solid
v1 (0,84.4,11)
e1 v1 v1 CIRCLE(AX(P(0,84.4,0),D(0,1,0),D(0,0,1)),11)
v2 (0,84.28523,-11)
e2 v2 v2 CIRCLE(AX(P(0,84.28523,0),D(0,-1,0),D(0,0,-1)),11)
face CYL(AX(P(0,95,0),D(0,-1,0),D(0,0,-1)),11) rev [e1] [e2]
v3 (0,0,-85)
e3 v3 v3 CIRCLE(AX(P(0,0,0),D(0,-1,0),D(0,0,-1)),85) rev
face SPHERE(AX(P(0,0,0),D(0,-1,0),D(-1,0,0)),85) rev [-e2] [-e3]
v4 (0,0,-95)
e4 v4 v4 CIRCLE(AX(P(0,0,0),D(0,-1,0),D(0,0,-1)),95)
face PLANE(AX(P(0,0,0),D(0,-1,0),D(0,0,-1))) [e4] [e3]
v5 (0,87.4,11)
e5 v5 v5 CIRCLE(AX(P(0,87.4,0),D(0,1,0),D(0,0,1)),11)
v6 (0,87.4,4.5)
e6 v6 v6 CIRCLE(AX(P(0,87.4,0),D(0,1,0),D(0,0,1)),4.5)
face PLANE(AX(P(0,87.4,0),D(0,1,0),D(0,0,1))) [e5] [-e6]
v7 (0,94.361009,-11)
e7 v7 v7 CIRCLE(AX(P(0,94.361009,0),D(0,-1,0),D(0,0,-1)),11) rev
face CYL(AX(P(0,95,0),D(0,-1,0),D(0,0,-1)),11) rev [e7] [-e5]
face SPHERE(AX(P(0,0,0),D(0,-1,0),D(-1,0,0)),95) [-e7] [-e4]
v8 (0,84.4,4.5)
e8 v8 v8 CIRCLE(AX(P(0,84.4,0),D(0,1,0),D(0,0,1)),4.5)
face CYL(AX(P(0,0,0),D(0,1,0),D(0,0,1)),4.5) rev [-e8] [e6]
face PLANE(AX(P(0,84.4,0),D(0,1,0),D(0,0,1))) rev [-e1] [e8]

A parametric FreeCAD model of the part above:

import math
import FreeCAD as App
import Part
import Sketcher

V = App.Vector

doc = App.newDocument("Part")
body = doc.addObject("PartDesign::Body", "Body")

# Sketch on XY plane
sketch1 = doc.addObject("Sketcher::SketchObject", "Sketch")
body.addObject(sketch1)
sketch1.AttachmentSupport = (doc.XY_Plane, [""])
sketch1.MapMode = "FlatFace"
sketch1.addGeometry([
    Part.LineSegment(V(0, 85, 0), V(0, 95, 0)),
    Part.ArcOfCircle(Part.Circle(V(0, 0, 0), V(0, 0, 1), 95), math.radians(90), math.radians(270)),
    Part.LineSegment(V(0, -95, 0), V(0, -85, 0)),
    Part.ArcOfCircle(Part.Circle(V(0, 0, 0), V(0, 0, 1), 85), math.radians(90), math.radians(270)),
], False)
sketch1.addConstraint([
    Sketcher.Constraint("Coincident", 0, 2, 1, 1),
    Sketcher.Constraint("Coincident", 1, 2, 2, 1),
    Sketcher.Constraint("Coincident", 2, 2, 3, 2),
    Sketcher.Constraint("Coincident", 3, 1, 0, 1),
    Sketcher.Constraint("Vertical", 0),
    Sketcher.Constraint("Vertical", 2),
    Sketcher.Constraint("Coincident", 1, 3, -1, 1),
    Sketcher.Constraint("Coincident", 3, 3, -1, 1),
    Sketcher.Constraint("PointOnObject", 0, 2, -2),
    Sketcher.Constraint("PointOnObject", 1, 2, -2),
    Sketcher.Constraint("Radius", 1, 95.0),
    Sketcher.Constraint("Radius", 3, 85.0),
])
revolution = doc.addObject("PartDesign::Revolution", "Revolution")
body.addObject(revolution)
revolution.Profile = sketch1
revolution.ReferenceAxis = (sketch1, ["V_Axis"])
revolution.Angle = 360

# Sketch on XZ plane
sketch2 = doc.addObject("Sketcher::SketchObject", "Sketch001")
body.addObject(sketch2)
sketch2.AttachmentSupport = (doc.XZ_Plane, [""])
sketch2.MapMode = "FlatFace"
sketch2.addGeometry([
    Part.LineSegment(V(-121, -116, 0), V(-121, 116, 0)),
    Part.LineSegment(V(-121, 116, 0), V(121, 116, 0)),
    Part.LineSegment(V(121, 116, 0), V(121, -116, 0)),
    Part.LineSegment(V(121, -116, 0), V(-121, -116, 0)),
], False)
sketch2.addConstraint([
    Sketcher.Constraint("Coincident", 0, 2, 1, 1),
    Sketcher.Constraint("Coincident", 1, 2, 2, 1),
    Sketcher.Constraint("Coincident", 2, 2, 3, 1),
    Sketcher.Constraint("Coincident", 3, 2, 0, 1),
    Sketcher.Constraint("Vertical", 0),
    Sketcher.Constraint("Horizontal", 1),
    Sketcher.Constraint("Vertical", 2),
    Sketcher.Constraint("Horizontal", 3),
    Sketcher.Constraint("Symmetric", 0, 2, 2, 2, -1, 1),
    Sketcher.Constraint("DistanceY", 0, 1, 0, 2, 231.138031),
    Sketcher.Constraint("DistanceX", 1, 1, 1, 2, 242.645614),
])
pocket1 = doc.addObject("PartDesign::Pocket", "Pocket")
body.addObject(pocket1)
pocket1.Profile = sketch2
pocket1.Type = "ThroughAll"
pocket1.Reversed = True

# Sketch on XZ plane
sketch3 = doc.addObject("Sketcher::SketchObject", "Sketch002")
body.addObject(sketch3)
sketch3.AttachmentSupport = (doc.XZ_Plane, [""])
sketch3.MapMode = "FlatFace"
sketch3.addGeometry(Part.Circle(V(0, 0, 0), V(0, 0, 1), 11), False)
sketch3.addConstraint([
    Sketcher.Constraint("Coincident", 0, 3, -1, 1),
    Sketcher.Constraint("Diameter", 0, 22.0),
])
pocket2 = doc.addObject("PartDesign::Pocket", "Pocket001")
body.addObject(pocket2)
pocket2.Profile = sketch3
pocket2.Type = "ThroughAll"

# Sketch on XZ plane
sketch4 = doc.addObject("Sketcher::SketchObject", "Sketch003")
body.addObject(sketch4)
sketch4.AttachmentSupport = (doc.XZ_Plane, [""])
sketch4.MapMode = "FlatFace"
sketch4.AttachmentOffset = App.Placement(V(0, 0, -84.4), App.Rotation())
sketch4.addGeometry(Part.Circle(V(0, 0, 0), V(0, 0, 1), 31), False)
sketch4.addConstraint([
    Sketcher.Constraint("Coincident", 0, 3, -1, 1),
    Sketcher.Constraint("Diameter", 0, 62.405758),
])
pad1 = doc.addObject("PartDesign::Pad", "Pad")
body.addObject(pad1)
pad1.Profile = sketch4
pad1.Length = 4
pad1.Reversed = True

# Sketch on XZ plane
sketch5 = doc.addObject("Sketcher::SketchObject", "Sketch004")
body.addObject(sketch5)
sketch5.AttachmentSupport = (doc.XZ_Plane, [""])
sketch5.MapMode = "FlatFace"
sketch5.AttachmentOffset = App.Placement(V(0, 0, -87.4), App.Rotation())
sketch5.addGeometry(Part.Circle(V(0, 0, 0), V(0, 0, 1), 11), False)
sketch5.addConstraint([
    Sketcher.Constraint("Coincident", 0, 3, -1, 1),
    Sketcher.Constraint("Diameter", 0, 22.0),
])
pocket3 = doc.addObject("PartDesign::Pocket", "Pocket002")
body.addObject(pocket3)
pocket3.Profile = sketch5
pocket3.Length = 7

# Sketch on XZ plane
sketch6 = doc.addObject("Sketcher::SketchObject", "Sketch005")
body.addObject(sketch6)
sketch6.AttachmentSupport = (doc.XZ_Plane, [""])
sketch6.MapMode = "FlatFace"
sketch6.AttachmentOffset = App.Placement(V(0, 0, -87.4), App.Rotation())
sketch6.addGeometry(Part.Circle(V(0, 0, 0), V(0, 0, 1), 4.5), False)
sketch6.addConstraint([
    Sketcher.Constraint("Coincident", 0, 3, -1, 1),
    Sketcher.Constraint("Diameter", 0, 9.0),
])
pocket4 = doc.addObject("PartDesign::Pocket", "Pocket003")
body.addObject(pocket4)
pocket4.Profile = sketch6
pocket4.Type = "ThroughAll"
pocket4.Reversed = True

doc.recompute()
